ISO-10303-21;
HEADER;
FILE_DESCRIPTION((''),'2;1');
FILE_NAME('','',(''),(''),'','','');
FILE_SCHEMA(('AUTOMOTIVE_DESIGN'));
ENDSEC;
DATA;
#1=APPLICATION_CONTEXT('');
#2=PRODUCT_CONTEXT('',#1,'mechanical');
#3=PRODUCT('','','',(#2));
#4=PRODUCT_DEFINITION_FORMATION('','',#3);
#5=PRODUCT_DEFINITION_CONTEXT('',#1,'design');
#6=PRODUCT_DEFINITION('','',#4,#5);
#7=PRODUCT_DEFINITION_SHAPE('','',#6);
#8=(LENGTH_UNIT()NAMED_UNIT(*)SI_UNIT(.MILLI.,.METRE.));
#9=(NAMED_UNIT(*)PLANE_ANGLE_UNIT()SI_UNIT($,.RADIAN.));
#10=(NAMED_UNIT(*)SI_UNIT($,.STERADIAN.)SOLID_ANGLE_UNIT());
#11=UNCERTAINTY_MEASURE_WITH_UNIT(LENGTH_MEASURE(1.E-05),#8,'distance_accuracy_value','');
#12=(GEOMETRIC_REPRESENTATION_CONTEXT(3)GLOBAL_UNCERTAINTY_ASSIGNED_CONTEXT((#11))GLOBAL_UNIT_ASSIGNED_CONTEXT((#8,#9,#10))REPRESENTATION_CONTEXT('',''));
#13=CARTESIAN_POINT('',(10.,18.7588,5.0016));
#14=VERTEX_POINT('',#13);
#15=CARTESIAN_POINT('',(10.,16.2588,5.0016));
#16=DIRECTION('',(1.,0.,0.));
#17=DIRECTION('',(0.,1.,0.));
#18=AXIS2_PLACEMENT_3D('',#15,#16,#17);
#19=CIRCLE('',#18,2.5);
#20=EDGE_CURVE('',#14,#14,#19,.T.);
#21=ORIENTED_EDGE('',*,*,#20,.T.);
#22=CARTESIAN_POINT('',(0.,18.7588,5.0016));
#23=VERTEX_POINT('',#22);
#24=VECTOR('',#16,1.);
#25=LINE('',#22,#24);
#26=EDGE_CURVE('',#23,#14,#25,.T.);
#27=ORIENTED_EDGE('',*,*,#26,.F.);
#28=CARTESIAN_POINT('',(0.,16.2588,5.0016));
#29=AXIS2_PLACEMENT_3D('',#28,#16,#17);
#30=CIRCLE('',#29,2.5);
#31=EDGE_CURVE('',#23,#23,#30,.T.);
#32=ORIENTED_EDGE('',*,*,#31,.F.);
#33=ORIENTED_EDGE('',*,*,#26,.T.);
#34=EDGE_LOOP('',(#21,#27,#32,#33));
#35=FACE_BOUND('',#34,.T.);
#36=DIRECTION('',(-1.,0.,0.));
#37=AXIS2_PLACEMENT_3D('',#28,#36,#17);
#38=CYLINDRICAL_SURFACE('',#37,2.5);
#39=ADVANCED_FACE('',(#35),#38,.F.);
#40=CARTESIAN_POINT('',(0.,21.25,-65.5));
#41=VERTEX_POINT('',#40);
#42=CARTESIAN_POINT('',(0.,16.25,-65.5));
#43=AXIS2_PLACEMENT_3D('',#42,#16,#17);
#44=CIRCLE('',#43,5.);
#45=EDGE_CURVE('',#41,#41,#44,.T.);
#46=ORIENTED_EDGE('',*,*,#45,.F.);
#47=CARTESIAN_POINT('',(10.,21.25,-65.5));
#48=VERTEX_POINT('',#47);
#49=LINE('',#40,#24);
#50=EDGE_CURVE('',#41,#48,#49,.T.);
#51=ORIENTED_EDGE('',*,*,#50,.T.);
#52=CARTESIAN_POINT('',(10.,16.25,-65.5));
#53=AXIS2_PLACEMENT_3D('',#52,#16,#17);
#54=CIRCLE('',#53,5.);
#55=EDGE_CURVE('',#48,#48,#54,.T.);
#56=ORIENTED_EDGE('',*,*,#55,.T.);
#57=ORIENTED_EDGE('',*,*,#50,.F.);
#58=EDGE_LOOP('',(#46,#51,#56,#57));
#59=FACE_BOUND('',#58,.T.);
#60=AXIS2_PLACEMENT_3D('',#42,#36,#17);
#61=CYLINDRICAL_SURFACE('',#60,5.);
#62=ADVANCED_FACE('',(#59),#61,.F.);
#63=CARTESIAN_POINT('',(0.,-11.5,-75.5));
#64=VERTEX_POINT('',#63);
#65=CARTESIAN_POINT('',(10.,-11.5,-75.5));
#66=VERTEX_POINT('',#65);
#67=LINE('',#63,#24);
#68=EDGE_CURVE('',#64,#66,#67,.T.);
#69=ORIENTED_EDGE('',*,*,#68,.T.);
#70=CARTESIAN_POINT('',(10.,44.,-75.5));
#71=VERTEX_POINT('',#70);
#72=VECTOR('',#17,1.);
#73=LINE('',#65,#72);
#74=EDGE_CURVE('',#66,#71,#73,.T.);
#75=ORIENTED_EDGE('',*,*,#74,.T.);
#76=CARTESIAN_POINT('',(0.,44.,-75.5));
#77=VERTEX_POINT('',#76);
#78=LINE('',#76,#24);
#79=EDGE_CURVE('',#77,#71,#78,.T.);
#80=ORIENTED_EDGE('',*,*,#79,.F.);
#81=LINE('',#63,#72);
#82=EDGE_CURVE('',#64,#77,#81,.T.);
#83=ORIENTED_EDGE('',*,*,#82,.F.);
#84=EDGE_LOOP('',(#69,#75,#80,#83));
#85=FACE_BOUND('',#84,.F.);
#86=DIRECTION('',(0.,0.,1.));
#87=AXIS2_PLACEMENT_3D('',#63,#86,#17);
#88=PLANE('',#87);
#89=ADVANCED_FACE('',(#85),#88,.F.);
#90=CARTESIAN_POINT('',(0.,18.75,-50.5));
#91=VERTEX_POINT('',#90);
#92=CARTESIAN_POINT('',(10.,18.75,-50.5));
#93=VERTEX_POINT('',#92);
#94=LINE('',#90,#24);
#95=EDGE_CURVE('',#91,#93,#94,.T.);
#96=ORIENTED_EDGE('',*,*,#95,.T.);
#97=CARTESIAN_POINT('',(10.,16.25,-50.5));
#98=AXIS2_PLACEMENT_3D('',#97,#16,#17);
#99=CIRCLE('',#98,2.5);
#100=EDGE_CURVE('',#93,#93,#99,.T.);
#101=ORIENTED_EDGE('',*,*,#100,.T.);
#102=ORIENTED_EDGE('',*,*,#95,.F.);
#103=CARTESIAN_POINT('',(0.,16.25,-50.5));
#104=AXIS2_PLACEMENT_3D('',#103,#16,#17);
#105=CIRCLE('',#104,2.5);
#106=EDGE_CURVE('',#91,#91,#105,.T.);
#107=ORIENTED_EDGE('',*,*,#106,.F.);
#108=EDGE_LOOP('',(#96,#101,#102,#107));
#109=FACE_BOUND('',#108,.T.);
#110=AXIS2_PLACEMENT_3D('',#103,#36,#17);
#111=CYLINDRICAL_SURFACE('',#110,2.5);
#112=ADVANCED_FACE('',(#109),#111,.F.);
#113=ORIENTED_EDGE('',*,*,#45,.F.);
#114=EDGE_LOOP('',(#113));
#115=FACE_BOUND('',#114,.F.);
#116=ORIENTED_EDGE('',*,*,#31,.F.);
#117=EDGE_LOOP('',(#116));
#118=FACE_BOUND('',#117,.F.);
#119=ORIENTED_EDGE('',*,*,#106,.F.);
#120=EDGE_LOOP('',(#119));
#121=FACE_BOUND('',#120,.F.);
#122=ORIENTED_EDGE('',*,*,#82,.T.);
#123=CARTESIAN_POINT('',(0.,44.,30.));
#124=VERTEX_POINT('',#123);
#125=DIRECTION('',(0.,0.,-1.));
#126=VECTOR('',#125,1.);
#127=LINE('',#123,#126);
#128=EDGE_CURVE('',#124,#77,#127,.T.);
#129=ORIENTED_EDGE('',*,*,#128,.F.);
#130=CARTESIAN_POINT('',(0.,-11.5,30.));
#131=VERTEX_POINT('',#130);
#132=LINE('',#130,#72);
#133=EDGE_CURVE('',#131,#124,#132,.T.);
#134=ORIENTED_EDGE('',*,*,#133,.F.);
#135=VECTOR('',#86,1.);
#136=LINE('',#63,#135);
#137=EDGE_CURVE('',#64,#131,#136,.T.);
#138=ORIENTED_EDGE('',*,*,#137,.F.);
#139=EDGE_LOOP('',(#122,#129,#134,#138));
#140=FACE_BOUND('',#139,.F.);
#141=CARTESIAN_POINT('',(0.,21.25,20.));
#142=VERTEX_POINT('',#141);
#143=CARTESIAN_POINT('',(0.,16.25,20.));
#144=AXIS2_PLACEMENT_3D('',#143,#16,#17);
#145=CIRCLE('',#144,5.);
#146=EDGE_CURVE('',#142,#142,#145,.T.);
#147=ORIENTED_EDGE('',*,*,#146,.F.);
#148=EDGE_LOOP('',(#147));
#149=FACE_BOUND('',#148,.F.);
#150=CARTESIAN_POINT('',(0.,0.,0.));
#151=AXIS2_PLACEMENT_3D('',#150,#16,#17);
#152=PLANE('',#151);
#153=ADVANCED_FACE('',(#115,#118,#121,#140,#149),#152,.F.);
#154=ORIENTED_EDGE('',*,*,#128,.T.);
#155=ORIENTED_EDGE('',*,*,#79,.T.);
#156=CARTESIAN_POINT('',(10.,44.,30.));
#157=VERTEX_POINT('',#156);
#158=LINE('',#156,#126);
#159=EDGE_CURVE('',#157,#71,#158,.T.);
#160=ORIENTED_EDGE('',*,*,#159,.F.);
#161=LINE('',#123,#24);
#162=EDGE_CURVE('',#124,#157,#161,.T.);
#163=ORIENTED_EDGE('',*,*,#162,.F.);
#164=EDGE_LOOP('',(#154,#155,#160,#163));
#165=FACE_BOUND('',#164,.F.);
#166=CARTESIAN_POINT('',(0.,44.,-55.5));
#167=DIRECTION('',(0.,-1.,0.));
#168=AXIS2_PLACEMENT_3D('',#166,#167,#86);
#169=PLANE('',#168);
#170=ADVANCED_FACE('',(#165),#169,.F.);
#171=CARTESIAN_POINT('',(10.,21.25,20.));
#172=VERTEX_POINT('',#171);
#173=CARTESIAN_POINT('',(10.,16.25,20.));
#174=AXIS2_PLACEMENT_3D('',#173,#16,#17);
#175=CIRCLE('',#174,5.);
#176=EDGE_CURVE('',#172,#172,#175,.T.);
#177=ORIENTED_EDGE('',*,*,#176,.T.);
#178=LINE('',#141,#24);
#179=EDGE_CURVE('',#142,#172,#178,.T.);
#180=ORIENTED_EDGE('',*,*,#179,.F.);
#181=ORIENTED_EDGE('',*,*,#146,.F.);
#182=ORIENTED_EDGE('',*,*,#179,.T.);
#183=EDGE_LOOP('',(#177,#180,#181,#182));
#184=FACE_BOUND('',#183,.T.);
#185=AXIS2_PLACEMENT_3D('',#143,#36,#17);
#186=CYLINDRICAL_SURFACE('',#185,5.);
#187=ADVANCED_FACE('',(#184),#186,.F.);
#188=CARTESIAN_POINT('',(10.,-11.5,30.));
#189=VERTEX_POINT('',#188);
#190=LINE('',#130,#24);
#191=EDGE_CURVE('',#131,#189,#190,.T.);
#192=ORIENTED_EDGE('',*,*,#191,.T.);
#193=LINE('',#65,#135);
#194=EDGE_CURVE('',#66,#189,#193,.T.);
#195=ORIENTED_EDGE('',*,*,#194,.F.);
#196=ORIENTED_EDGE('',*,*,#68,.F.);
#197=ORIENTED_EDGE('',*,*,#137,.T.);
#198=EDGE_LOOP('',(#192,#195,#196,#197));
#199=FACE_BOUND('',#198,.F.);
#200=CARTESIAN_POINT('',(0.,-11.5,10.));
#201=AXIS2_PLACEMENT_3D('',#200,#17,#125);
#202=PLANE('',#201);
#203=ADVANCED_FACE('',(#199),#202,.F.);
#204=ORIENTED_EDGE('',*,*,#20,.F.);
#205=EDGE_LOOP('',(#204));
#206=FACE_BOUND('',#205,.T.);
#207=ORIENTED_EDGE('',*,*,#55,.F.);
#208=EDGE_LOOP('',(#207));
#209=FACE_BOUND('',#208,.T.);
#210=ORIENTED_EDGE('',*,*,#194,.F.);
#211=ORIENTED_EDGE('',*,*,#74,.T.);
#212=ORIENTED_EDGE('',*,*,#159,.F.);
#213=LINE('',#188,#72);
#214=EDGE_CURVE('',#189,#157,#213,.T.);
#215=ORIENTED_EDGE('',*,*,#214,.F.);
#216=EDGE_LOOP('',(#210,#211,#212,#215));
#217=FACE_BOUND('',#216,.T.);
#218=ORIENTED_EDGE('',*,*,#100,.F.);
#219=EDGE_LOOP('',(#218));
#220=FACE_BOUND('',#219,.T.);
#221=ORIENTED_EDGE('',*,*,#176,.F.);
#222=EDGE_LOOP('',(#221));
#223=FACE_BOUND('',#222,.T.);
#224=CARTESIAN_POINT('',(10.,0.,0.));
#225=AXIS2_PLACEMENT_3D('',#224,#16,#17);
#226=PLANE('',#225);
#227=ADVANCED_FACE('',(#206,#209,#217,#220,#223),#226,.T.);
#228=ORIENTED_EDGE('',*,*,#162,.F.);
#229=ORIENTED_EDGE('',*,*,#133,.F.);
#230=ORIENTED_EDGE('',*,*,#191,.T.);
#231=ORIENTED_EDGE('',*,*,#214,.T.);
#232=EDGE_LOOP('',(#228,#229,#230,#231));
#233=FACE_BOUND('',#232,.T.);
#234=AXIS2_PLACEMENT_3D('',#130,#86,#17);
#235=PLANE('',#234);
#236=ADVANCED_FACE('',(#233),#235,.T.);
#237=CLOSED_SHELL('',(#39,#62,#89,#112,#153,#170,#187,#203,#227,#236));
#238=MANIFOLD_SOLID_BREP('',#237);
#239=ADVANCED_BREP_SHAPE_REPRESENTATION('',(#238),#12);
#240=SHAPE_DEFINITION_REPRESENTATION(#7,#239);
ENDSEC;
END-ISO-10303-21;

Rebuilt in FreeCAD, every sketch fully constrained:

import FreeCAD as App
import Part
import Sketcher

V = App.Vector


def add_polygon(sketch, points):
    """Adds a closed chain of lines whose ends are joined by coincident constraints."""
    first, n = sketch.GeometryCount, len(points)
    for a, b in zip(points, points[1:] + points[:1]):
        sketch.addGeometry(Part.LineSegment(App.Vector(*a, 0), App.Vector(*b, 0)), False)
    for i in range(n):
        sketch.addConstraint(Sketcher.Constraint("Coincident", first + i, 2, first + (i + 1) % n, 1))

doc = App.newDocument("Part")
body = doc.addObject("PartDesign::Body", "Body")

sketch1 = body.newObject("Sketcher::SketchObject", "Sketch")
sketch1.AttachmentSupport = (doc.getObject("YZ_Plane"), [""])
sketch1.MapMode = "FlatFace"
add_polygon(sketch1, [(44, 30), (-11.5, 30), (-11.5, -75.5), (44, -75.5)])
sketch1.addGeometry(Part.Circle(V(16.2, -50.5, 0), V(0, 0, 1), 2.5), False)
sketch1.addGeometry(Part.Circle(V(16.3, 5, 0), V(0, 0, 1), 2.5), False)
sketch1.addGeometry(Part.Circle(V(16.2, -65.5, 0), V(0, 0, 1), 5), False)
sketch1.addGeometry(Part.Circle(V(16.2, 20, 0), V(0, 0, 1), 5), False)
sketch1.addConstraint([
    Sketcher.Constraint("Horizontal", 0),
    Sketcher.Constraint("Vertical", 1),
    Sketcher.Constraint("Horizontal", 2),
    Sketcher.Constraint("Vertical", 3),
    Sketcher.Constraint("Equal", 4, 5),
    Sketcher.Constraint("Equal", 6, 7),
    Sketcher.Constraint("Vertical", 4, 3, 6, 3),
    Sketcher.Constraint("Vertical", 6, 3, 7, 3),
    Sketcher.Constraint("Diameter", 6, 10.0),
    Sketcher.Constraint("Diameter", 4, 5.0),
    Sketcher.Constraint("DistanceY", -1, 1, 7, 3, 20.0),
    Sketcher.Constraint("DistanceY", 7, 3, 0, 2, 10.0),
    Sketcher.Constraint("DistanceY", 1, 2, 6, 3, 10.0),
    Sketcher.Constraint("DistanceX", 0, 2, 0, 1, 55.5),
    Sketcher.Constraint("DistanceY", 1, 2, 1, 1, 105.5),
    Sketcher.Constraint("DistanceX", -1, 1, 2, 2, 44.0),
    Sketcher.Constraint("DistanceY", 6, 3, 4, 3, 15.0),
    Sketcher.Constraint("DistanceX", -1, 1, 4, 3, 16.25),
    Sketcher.Constraint("DistanceX", -1, 1, 5, 3, 16.2588),
    Sketcher.Constraint("DistanceY", -1, 1, 5, 3, 5.0016),
])
pad1 = body.newObject("PartDesign::Pad", "Pad")
pad1.Profile = sketch1
pad1.Length = 10

doc.recompute()
